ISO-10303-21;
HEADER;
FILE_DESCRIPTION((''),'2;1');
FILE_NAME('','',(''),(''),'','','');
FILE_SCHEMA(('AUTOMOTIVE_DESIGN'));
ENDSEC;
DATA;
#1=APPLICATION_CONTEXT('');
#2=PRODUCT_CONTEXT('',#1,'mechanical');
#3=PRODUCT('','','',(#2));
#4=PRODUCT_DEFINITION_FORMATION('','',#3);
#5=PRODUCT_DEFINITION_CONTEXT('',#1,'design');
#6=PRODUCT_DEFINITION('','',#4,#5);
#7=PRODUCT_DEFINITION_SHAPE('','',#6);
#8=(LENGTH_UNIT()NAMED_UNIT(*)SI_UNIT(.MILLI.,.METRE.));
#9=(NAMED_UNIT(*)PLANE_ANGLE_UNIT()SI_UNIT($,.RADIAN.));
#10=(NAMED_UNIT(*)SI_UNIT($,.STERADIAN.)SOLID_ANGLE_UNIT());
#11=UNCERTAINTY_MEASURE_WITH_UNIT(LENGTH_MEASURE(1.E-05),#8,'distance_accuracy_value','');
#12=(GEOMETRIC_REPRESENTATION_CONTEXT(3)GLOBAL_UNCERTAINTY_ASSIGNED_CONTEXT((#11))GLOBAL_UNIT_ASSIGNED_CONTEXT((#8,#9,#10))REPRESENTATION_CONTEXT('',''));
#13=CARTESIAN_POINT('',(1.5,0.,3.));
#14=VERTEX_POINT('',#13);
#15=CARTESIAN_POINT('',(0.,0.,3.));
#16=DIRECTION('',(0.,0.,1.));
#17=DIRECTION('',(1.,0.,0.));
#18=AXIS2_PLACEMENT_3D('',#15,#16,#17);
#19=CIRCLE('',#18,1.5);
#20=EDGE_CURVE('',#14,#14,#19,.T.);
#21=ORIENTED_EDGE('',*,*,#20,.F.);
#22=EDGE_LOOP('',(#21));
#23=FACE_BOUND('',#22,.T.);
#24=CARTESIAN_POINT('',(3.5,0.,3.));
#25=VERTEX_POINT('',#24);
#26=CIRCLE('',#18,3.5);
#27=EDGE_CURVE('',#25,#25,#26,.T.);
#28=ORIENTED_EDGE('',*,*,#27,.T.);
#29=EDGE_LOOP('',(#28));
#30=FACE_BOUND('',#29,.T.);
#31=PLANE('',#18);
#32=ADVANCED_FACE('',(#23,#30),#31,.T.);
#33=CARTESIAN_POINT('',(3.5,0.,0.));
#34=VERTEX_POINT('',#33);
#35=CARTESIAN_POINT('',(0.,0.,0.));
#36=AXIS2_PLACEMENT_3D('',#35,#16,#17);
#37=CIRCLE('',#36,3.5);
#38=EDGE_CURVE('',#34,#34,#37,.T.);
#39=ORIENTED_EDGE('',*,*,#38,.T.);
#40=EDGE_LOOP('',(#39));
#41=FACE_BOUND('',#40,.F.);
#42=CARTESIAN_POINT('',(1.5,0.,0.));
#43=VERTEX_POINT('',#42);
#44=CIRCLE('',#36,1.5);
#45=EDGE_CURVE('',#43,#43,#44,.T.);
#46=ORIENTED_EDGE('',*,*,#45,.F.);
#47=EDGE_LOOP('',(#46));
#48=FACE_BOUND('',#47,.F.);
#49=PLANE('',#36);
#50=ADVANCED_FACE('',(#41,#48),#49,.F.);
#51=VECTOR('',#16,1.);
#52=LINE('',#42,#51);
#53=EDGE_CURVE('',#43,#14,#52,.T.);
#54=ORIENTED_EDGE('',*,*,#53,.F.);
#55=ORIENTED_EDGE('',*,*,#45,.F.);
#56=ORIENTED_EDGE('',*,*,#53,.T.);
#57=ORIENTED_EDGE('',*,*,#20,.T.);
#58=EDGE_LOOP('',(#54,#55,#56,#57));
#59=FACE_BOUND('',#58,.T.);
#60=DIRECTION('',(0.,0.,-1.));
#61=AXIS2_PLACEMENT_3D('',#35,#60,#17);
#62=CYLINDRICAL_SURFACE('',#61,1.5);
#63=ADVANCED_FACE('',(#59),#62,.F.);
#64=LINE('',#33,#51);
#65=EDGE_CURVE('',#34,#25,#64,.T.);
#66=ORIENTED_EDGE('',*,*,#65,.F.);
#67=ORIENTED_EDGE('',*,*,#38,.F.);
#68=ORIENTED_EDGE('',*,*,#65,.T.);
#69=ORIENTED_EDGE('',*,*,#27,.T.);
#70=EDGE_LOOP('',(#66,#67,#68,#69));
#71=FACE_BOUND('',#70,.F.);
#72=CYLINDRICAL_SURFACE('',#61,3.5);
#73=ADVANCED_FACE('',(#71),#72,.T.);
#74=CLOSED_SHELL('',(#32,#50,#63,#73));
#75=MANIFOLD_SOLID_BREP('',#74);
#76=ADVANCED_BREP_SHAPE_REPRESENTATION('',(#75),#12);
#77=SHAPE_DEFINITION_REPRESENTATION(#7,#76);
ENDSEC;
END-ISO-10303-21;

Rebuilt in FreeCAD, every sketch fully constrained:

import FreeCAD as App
import Part
import Sketcher
from FreeCAD import Vector

doc = App.newDocument("Part")
body = doc.addObject("PartDesign::Body", "Body")

# Sketch on XY plane
sketch1 = body.newObject("Sketcher::SketchObject", "Sketch")
sketch1.AttachmentSupport = (doc.getObject("XY_Plane"), [""])
sketch1.MapMode = "FlatFace"
sketch1.addGeometry([
    Part.Circle(Vector(0, 0, 0), Vector(0, 0, 1), 3.5),
    Part.Circle(Vector(0, 0, 0), Vector(0, 0, 1), 1.5),
], False)
sketch1.addConstraint([
    Sketcher.Constraint("Coincident", 0, 3, -1, 1),
    Sketcher.Constraint("Coincident", 1, 3, -1, 1),
    Sketcher.Constraint("Diameter", 0, 7.0),
    Sketcher.Constraint("Diameter", 1, 3.0),
])
pad1 = body.newObject("PartDesign::Pad", "Pad")
pad1.Profile = sketch1
pad1.Length = 3

doc.recompute()
